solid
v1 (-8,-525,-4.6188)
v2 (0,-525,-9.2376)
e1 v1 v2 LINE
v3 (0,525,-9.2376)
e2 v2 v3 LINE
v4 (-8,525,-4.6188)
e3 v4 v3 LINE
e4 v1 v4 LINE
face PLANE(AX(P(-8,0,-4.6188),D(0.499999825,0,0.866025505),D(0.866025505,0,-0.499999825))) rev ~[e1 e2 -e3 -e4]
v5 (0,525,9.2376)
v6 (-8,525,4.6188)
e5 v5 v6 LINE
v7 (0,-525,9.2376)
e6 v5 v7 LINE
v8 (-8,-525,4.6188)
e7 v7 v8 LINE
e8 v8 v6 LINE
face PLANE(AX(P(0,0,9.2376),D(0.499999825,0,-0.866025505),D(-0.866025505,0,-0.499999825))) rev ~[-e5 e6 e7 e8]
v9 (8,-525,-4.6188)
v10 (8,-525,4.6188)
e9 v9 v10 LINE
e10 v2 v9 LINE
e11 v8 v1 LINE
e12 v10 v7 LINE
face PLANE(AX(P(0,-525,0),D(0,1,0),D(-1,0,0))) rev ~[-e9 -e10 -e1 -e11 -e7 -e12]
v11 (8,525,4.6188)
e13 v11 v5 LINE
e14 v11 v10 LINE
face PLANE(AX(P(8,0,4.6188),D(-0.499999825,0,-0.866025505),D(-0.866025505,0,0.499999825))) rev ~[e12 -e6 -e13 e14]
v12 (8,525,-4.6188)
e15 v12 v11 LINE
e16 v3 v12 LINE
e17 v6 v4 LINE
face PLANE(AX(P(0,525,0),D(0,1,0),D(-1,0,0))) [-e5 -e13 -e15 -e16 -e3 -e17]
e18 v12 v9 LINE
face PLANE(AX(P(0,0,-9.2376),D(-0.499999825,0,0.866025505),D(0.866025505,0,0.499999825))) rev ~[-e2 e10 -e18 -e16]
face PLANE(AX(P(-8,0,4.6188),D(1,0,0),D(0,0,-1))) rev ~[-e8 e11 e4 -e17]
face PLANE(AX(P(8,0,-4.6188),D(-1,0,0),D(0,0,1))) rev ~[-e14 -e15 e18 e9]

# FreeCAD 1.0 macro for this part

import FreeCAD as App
import Part
import Sketcher

V = App.Vector
Q = App.Units.Quantity


def add_polygon(sketch, points):
    """Adds a closed chain of lines whose ends are joined by coincident constraints."""
    first, n = sketch.GeometryCount, len(points)
    for a, b in zip(points, points[1:] + points[:1]):
        sketch.addGeometry(Part.LineSegment(App.Vector(*a, 0), App.Vector(*b, 0)), False)
    for i in range(n):
        sketch.addConstraint(Sketcher.Constraint("Coincident", first + i, 2, first + (i + 1) % n, 1))

doc = App.newDocument("Part")
body = doc.addObject("PartDesign::Body", "Body")

# Sketch on XZ plane
sketch1 = body.newObject("Sketcher::SketchObject", "Sketch")
sketch1.AttachmentSupport = (doc.getObject("XZ_Plane"), [""])
sketch1.MapMode = "FlatFace"
add_polygon(sketch1, [(8, -4.6188), (0, -9.2376), (-8, -4.6188), (-8, 4.6188), (0, 9.2376), (8, 4.6188)])  # lines 0-5
sketch1.addConstraint([
    Sketcher.Constraint("Vertical", 2),
    Sketcher.Constraint("Vertical", 5),
    Sketcher.Constraint("Symmetric", 0, 2, 3, 2, -1, 1),
    Sketcher.Constraint("Symmetric", 1, 2, 4, 2, -1, 1),
    Sketcher.Constraint("PointOnObject", 0, 2, -2),
    Sketcher.Constraint("Parallel", 0, 3),
    Sketcher.Constraint("Horizontal", 2, 2, 4, 2),
    Sketcher.Constraint("DistanceX", 2, 2, 4, 2, 16.0),
    Sketcher.Constraint("Angle", 0, Q("-150 deg")),
    Sketcher.Constraint("DistanceY", 2, 1, 2, 2, 9.2376),
])
pad1 = body.newObject("PartDesign::Pad", "Pad")
pad1.Profile = sketch1
pad1.Length = 1050
pad1.Midplane = True

doc.recompute()
